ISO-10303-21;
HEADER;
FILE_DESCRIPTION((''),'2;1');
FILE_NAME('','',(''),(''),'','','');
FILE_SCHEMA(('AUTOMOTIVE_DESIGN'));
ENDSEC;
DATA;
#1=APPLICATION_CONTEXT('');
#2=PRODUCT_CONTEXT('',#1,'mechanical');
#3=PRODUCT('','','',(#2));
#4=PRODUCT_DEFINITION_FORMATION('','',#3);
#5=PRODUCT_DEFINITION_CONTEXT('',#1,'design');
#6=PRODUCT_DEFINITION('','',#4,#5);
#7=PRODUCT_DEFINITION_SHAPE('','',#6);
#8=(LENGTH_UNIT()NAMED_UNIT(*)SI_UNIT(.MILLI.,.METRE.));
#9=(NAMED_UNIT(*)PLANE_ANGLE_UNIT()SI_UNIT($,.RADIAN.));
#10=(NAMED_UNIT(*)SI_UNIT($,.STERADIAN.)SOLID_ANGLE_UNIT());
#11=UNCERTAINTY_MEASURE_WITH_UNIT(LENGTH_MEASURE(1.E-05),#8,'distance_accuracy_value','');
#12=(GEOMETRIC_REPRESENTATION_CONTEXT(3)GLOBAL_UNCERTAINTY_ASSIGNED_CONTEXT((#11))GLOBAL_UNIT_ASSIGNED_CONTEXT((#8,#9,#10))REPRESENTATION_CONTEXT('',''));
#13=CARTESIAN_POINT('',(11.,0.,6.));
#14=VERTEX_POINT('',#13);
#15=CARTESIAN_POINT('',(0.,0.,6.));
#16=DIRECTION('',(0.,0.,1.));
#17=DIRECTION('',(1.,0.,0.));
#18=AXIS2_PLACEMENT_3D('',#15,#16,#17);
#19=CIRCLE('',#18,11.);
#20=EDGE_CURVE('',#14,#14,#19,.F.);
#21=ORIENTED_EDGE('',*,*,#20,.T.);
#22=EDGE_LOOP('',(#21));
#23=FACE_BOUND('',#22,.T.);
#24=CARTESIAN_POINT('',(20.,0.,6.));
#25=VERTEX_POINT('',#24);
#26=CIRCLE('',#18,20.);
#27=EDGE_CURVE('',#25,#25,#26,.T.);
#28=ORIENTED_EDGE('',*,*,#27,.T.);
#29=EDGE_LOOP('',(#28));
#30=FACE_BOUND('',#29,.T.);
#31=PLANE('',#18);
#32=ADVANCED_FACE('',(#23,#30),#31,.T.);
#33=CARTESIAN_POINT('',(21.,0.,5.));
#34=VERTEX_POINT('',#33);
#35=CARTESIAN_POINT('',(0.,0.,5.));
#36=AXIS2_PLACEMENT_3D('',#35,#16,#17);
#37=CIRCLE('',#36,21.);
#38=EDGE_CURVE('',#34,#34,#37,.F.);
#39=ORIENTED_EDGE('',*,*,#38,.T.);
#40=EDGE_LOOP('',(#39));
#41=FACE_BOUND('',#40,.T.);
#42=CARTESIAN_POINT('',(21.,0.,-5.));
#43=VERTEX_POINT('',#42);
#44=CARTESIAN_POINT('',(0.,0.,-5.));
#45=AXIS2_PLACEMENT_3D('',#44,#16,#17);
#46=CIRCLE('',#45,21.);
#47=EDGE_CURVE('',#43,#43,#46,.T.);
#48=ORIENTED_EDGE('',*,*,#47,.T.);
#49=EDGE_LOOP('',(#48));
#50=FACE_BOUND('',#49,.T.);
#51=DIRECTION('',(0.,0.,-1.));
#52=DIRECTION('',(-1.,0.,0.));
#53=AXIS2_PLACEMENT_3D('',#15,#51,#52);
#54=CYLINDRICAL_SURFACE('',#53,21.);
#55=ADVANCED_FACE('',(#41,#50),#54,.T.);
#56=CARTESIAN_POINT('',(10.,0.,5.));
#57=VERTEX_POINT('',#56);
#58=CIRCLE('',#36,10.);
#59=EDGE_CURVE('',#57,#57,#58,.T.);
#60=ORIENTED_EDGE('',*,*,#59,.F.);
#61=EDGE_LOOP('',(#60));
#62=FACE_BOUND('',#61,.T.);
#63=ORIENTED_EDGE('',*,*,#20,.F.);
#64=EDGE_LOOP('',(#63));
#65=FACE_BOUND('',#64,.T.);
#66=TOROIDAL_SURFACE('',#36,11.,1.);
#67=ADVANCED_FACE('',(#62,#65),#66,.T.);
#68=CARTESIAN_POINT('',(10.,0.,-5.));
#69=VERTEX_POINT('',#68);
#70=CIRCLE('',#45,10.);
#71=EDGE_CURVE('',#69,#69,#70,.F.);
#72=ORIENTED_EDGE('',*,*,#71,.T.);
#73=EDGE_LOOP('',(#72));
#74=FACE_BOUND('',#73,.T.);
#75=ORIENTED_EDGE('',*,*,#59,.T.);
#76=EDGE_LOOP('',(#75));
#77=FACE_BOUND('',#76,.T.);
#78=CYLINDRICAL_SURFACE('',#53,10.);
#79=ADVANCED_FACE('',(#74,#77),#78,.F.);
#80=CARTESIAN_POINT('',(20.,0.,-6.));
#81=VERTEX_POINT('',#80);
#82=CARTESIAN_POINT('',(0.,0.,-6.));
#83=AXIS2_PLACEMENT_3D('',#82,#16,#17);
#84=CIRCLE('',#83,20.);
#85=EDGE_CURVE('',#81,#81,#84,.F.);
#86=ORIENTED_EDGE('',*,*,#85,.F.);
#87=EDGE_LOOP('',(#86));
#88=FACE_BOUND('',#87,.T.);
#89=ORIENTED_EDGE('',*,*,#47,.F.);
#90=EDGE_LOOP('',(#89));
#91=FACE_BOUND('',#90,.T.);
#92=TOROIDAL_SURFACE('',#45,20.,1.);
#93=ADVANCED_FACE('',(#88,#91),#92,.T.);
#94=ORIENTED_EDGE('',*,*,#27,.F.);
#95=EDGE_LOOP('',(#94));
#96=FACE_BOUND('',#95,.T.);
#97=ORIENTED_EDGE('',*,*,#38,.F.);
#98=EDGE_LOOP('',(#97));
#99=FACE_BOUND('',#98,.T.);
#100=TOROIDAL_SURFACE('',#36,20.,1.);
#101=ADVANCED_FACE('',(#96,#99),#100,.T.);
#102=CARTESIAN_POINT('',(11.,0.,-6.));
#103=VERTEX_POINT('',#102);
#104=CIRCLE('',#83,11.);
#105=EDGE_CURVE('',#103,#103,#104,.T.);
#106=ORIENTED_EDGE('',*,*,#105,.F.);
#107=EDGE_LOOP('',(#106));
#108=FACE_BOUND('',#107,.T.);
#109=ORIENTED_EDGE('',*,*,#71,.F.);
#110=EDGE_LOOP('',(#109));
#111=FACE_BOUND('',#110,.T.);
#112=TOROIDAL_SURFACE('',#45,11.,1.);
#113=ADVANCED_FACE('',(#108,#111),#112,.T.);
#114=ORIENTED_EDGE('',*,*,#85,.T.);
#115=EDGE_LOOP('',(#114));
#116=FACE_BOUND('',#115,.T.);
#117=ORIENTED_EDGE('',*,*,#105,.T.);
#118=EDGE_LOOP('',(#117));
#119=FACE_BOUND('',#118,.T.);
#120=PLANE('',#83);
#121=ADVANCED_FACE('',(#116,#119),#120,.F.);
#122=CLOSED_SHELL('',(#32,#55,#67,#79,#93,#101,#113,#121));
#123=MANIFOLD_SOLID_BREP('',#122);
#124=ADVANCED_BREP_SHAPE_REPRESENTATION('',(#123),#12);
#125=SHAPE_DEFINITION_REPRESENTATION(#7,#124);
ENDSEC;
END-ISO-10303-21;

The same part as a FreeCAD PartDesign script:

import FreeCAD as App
import Part
import Sketcher
from FreeCAD import Vector


def edges_at(feature, points):
    """Names of the edges that pass closest to the given points."""
    edges = feature.Shape.Edges
    near = lambda p: min(range(len(edges)), key=lambda i: edges[i].distToShape(Part.Vertex(*p))[0])
    return sorted({f"Edge{near(p) + 1}" for p in points})

doc = App.newDocument("Part")
params = doc.addObject("Spreadsheet::Sheet", "Params")
for row, (alias, value) in enumerate([
    ("sketch1_diameter", "42 mm"),
    ("sketch1_diameter2", "20 mm"),
    ("pad1_length", "12 mm"),
    ("fillet_radius", "1 mm"),
], start=1):
    params.set(f"A{row}", alias)
    params.set(f"B{row}", "=" + value)
    params.setAlias(f"B{row}", alias)

body = doc.addObject("PartDesign::Body", "Body")

# Sketch on XY plane
sketch1 = body.newObject("Sketcher::SketchObject", "Sketch")
sketch1.AttachmentSupport = (doc.getObject("XY_Plane"), [""])
sketch1.MapMode = "FlatFace"
sketch1.addGeometry(Part.Circle(Vector(0, 0, 0), Vector(0, 0, 1), 21), False)
sketch1.addGeometry(Part.Circle(Vector(0, 0, 0), Vector(0, 0, 1), 10), False)
sketch1.addConstraint(Sketcher.Constraint("Coincident", 0, 3, -1, 1))
sketch1.addConstraint(Sketcher.Constraint("Coincident", 1, 3, -1, 1))
sketch1.addConstraint(Sketcher.Constraint("Diameter", 0, 42.0))
sketch1.addConstraint(Sketcher.Constraint("Diameter", 1, 20.0))
sketch1.setExpression("Constraints[2]", "Params.sketch1_diameter")
sketch1.setExpression("Constraints[3]", "Params.sketch1_diameter2")
pad1 = body.newObject("PartDesign::Pad", "Pad")
pad1.Profile = sketch1
pad1.setExpression("Length", "Params.pad1_length")
pad1.Midplane = True
doc.recompute()

fillet = body.newObject("PartDesign::Fillet", "Fillet")
fillet.Base = (pad1, edges_at(pad1, [
    (-21, 0, -6),
    (-21, 0, 6),
    (-10, 0, -6),
    (-10, 0, 6),
]))
fillet.setExpression("Radius", "Params.fillet_radius")

doc.recompute()
